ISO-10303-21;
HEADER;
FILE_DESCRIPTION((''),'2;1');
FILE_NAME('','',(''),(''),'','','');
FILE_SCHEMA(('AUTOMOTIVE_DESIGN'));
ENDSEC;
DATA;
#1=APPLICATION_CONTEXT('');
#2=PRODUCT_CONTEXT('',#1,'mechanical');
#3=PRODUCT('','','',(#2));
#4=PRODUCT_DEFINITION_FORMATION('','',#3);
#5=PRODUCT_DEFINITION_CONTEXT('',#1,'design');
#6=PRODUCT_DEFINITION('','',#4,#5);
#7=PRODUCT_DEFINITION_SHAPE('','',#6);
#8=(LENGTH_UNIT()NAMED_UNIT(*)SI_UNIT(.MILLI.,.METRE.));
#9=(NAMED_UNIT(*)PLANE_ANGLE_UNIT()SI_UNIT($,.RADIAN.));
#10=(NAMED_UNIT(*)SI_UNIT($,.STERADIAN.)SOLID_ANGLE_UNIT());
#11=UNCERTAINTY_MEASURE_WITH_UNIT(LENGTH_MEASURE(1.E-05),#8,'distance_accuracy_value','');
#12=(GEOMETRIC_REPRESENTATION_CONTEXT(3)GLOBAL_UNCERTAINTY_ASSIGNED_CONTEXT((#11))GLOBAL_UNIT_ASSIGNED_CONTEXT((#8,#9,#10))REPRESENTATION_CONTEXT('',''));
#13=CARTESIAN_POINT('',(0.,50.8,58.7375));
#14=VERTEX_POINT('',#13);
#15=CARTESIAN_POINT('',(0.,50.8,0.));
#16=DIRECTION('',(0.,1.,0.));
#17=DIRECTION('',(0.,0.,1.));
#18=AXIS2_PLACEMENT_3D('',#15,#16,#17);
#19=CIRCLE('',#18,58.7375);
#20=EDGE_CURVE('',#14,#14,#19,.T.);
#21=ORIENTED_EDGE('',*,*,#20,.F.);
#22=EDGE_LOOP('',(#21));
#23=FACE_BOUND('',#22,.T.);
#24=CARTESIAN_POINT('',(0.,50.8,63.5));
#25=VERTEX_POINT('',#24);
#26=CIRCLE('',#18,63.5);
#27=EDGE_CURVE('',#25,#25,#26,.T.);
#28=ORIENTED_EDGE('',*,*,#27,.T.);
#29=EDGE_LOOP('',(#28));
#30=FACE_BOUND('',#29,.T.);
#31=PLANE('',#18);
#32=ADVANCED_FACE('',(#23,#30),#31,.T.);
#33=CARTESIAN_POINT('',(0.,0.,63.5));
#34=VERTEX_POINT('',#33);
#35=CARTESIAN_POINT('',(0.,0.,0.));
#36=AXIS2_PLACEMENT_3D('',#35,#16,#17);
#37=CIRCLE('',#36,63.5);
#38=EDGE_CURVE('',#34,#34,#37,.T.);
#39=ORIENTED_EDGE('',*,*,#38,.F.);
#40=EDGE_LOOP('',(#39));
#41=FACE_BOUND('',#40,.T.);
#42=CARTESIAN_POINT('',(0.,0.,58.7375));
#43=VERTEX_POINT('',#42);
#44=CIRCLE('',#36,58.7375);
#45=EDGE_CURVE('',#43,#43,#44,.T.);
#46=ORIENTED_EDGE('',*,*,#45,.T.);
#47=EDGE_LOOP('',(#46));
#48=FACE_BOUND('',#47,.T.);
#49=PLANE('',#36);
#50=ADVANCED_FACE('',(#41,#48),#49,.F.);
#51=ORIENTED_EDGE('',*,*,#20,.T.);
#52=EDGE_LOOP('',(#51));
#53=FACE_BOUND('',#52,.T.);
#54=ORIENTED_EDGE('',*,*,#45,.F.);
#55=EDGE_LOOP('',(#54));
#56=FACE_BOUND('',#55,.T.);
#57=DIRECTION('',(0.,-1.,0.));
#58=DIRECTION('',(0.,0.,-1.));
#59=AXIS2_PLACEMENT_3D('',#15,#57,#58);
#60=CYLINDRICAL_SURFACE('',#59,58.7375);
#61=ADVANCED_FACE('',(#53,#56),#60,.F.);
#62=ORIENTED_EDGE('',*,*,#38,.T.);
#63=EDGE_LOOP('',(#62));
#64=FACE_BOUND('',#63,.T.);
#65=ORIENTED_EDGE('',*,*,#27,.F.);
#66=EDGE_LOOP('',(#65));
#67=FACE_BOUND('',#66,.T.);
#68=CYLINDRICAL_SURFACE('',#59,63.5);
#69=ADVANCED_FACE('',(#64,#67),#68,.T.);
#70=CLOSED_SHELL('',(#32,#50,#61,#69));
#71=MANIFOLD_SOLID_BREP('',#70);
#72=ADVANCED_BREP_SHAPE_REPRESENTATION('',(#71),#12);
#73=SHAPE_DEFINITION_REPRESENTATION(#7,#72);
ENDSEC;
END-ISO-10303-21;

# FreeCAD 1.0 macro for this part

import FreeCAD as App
import Part
import Sketcher
Q = App.Units.Quantity

doc = App.newDocument("Part")
body = doc.addObject("PartDesign::Body", "Body")

sketch1 = body.newObject("Sketcher::SketchObject", "Sketch")
sketch1.AttachmentSupport = (doc.getObject("XZ_Plane"), [""])
sketch1.MapMode = "FlatFace"
sketch1.addGeometry(Part.Circle(App.Vector(0, 0, 0), App.Vector(0, 0, 1), 64), False)
sketch1.addGeometry(Part.Circle(App.Vector(0, 0, 0), App.Vector(0, 0, 1), 59), False)
sketch1.addConstraint(Sketcher.Constraint("Coincident", 0, 3, -1, 1))
sketch1.addConstraint(Sketcher.Constraint("Coincident", 1, 3, -1, 1))
sketch1.addConstraint(Sketcher.Constraint("Diameter", 0, Q("5 in")))
sketch1.addConstraint(Sketcher.Constraint("Diameter", 1, Q("4.625 in")))
pad1 = body.newObject("PartDesign::Pad", "Pad")
pad1.Profile = sketch1
pad1.Length = Q("2 in")
pad1.Reversed = True

doc.recompute()
